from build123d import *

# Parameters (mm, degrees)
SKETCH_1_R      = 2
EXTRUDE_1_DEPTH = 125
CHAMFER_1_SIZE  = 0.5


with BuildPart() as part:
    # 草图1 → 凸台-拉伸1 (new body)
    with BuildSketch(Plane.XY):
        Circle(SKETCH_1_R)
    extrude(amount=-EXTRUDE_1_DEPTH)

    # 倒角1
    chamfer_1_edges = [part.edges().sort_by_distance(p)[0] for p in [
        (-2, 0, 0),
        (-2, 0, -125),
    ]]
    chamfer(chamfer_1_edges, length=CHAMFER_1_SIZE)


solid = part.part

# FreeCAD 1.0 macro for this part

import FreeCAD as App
import Part
import Sketcher


def edges_at(feature, points):
    """Names of the edges that pass closest to the given points."""
    edges = feature.Shape.Edges
    near = lambda p: min(range(len(edges)), key=lambda i: edges[i].distToShape(Part.Vertex(*p))[0])
    return sorted({f"Edge{near(p) + 1}" for p in points})

doc = App.newDocument("Part")
body = doc.addObject("PartDesign::Body", "Body")

# Sketch on XY plane
sketch1 = body.newObject("Sketcher::SketchObject", "Sketch")
sketch1.AttachmentSupport = (doc.getObject("XY_Plane"), [""])
sketch1.MapMode = "FlatFace"
sketch1.addGeometry(Part.Circle(App.Vector(0, 0, 0), App.Vector(0, 0, 1), 2), False)
sketch1.addConstraint(Sketcher.Constraint("Coincident", 0, 3, -1, 1))
sketch1.addConstraint(Sketcher.Constraint("Diameter", 0, 4.0))
pad1 = body.newObject("PartDesign::Pad", "Pad")
pad1.Profile = sketch1
pad1.Length = 125
pad1.Reversed = True
doc.recompute()

chamfer = body.newObject("PartDesign::Chamfer", "Chamfer")
chamfer.Base = (pad1, edges_at(pad1, [(-2, 0, 0), (-2, 0, -125)]))
chamfer.Size = 0.5

doc.recompute()
